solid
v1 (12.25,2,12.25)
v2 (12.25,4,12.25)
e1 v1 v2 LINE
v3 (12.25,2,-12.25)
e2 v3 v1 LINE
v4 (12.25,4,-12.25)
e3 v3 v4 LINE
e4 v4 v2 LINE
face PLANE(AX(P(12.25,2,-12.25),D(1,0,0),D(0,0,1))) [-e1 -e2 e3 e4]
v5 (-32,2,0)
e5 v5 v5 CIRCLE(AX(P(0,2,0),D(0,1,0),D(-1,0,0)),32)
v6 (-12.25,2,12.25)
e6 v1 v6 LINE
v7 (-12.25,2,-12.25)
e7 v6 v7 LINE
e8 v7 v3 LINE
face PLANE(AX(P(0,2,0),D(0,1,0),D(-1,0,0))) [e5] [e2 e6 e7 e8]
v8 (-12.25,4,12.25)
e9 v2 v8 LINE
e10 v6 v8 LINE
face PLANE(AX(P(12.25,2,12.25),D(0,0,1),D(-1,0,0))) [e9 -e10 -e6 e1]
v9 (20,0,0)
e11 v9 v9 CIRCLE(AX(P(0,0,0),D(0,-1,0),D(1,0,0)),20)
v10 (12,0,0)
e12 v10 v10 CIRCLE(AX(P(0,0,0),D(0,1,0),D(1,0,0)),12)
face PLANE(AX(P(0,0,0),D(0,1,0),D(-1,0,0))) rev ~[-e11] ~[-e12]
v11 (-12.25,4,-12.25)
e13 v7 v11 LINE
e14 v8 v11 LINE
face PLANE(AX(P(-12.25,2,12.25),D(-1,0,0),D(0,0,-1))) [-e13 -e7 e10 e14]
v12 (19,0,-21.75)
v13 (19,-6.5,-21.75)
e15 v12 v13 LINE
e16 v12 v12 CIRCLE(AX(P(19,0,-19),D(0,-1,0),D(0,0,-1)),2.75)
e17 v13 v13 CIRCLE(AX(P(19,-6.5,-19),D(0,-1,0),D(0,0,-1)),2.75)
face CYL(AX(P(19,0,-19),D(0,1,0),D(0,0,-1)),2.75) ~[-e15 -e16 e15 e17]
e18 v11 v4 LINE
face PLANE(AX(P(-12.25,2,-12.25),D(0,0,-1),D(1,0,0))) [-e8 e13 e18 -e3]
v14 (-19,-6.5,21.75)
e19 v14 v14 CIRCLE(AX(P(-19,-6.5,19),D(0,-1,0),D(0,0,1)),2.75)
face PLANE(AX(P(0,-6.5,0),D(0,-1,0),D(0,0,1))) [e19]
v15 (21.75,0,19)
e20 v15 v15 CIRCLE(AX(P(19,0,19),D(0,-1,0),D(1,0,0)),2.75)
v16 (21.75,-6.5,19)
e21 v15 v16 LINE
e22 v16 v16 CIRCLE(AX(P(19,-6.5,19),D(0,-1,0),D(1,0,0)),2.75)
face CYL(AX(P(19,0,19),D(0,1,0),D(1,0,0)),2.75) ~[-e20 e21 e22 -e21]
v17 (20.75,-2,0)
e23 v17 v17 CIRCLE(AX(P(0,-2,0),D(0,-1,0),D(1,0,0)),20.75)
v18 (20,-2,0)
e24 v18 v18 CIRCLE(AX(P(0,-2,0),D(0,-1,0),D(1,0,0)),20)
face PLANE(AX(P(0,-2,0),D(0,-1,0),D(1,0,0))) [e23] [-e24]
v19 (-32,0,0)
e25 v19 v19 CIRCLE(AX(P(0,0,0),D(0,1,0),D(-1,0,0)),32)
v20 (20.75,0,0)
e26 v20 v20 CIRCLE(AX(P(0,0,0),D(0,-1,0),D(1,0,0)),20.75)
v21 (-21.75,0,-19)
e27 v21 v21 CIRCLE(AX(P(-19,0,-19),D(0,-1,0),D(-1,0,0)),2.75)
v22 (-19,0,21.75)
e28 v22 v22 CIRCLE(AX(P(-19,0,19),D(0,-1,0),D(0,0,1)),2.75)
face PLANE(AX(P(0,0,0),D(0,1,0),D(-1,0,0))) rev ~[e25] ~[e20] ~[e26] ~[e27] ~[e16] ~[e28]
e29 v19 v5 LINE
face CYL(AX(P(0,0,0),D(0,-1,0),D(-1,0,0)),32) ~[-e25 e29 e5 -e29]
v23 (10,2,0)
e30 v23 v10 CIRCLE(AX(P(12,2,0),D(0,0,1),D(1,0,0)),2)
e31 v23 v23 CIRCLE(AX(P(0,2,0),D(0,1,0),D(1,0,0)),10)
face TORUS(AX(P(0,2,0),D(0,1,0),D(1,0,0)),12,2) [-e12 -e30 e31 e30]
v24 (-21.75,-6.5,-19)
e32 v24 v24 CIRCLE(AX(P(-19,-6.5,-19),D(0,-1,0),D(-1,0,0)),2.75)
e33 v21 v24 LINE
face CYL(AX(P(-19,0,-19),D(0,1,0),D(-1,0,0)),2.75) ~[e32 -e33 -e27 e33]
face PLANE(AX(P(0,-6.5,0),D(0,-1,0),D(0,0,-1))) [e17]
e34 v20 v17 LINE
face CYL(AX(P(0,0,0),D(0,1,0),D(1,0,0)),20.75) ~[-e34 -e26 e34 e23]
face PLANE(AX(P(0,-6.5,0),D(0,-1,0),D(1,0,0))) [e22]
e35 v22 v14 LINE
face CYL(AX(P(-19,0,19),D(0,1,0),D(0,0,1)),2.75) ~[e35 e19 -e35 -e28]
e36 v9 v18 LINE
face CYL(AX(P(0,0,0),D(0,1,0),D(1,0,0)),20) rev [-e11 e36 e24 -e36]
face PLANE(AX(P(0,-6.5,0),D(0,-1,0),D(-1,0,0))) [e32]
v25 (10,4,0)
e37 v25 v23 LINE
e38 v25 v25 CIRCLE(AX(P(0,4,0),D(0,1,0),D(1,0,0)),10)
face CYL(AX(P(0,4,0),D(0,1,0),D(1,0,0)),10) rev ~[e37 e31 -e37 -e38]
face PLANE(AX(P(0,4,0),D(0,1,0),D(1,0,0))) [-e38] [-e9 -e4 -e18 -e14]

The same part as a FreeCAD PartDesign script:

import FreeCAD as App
import Part
import Sketcher

V = App.Vector


def edges_at(feature, points):
    """Names of the edges that pass closest to the given points."""
    edges = feature.Shape.Edges
    near = lambda p: min(range(len(edges)), key=lambda i: edges[i].distToShape(Part.Vertex(*p))[0])
    return sorted({f"Edge{near(p) + 1}" for p in points})


def add_polygon(sketch, points):
    """Adds a closed chain of lines whose ends are joined by coincident constraints."""
    first, n = sketch.GeometryCount, len(points)
    for a, b in zip(points, points[1:] + points[:1]):
        sketch.addGeometry(Part.LineSegment(App.Vector(*a, 0), App.Vector(*b, 0)), False)
    for i in range(n):
        sketch.addConstraint(Sketcher.Constraint("Coincident", first + i, 2, first + (i + 1) % n, 1))

doc = App.newDocument("Part")
body = doc.addObject("PartDesign::Body", "Body")

# Sketch on XZ plane
sketch1 = doc.addObject("Sketcher::SketchObject", "Sketch")
body.addObject(sketch1)
sketch1.AttachmentSupport = (doc.XZ_Plane, [""])
sketch1.MapMode = "FlatFace"
sketch1.addGeometry(Part.Circle(V(0, 0, 0), V(0, 0, 1), 32), False)
sketch1.addConstraint(Sketcher.Constraint("Coincident", 0, 3, -1, 1))
sketch1.addConstraint(Sketcher.Constraint("Diameter", 0, 64.0))
pad1 = doc.addObject("PartDesign::Pad", "Pad")
body.addObject(pad1)
pad1.Profile = sketch1
pad1.Length = 2
pad1.Reversed = True

# Sketch on XZ plane
sketch2 = doc.addObject("Sketcher::SketchObject", "Sketch001")
body.addObject(sketch2)
sketch2.AttachmentSupport = (doc.XZ_Plane, [""])
sketch2.MapMode = "FlatFace"
sketch2.addGeometry(Part.Circle(V(0, 0, 0), V(0, 0, 1), 20.75), False)
sketch2.addGeometry(Part.Circle(V(0, 0, 0), V(0, 0, 1), 20), False)
sketch2.addConstraint(Sketcher.Constraint("Coincident", 0, 3, -1, 1))
sketch2.addConstraint(Sketcher.Constraint("Coincident", 1, 3, -1, 1))
sketch2.addConstraint(Sketcher.Constraint("Diameter", 1, 40.0))
sketch2.addConstraint(Sketcher.Constraint("Diameter", 0, 41.5))
pad2 = doc.addObject("PartDesign::Pad", "Pad001")
body.addObject(pad2)
pad2.Profile = sketch2
pad2.Length = 2

# Sketch on XZ plane
sketch3 = doc.addObject("Sketcher::SketchObject", "Sketch002")
body.addObject(sketch3)
sketch3.AttachmentSupport = (doc.XZ_Plane, [""])
sketch3.MapMode = "FlatFace"
sketch3.addGeometry(Part.Circle(V(19, 19, 0), V(0, 0, 1), 2.75), False)
sketch3.addConstraint(Sketcher.Constraint("Diameter", 0, 5.5))
sketch3.addConstraint(Sketcher.Constraint("DistanceX", -1, 1, 0, 3, 19.0))
sketch3.addConstraint(Sketcher.Constraint("DistanceY", -1, 1, 0, 3, 19.0))
pad3 = doc.addObject("PartDesign::Pad", "Pad002")
body.addObject(pad3)
pad3.Profile = sketch3
pad3.Length = 6.5
doc.recompute()

polarpattern = doc.addObject("PartDesign::PolarPattern", "PolarPattern")
body.addObject(polarpattern)
polarpattern.Originals = [pad3]
polarpattern.Axis = (doc.Y_Axis, [""])
polarpattern.Angle = 360
polarpattern.Occurrences = 4
body.Tip = polarpattern

# Sketch on XZ plane
sketch4 = doc.addObject("Sketcher::SketchObject", "Sketch003")
body.addObject(sketch4)
sketch4.AttachmentSupport = (doc.XZ_Plane, [""])
sketch4.MapMode = "FlatFace"
sketch4.AttachmentOffset = App.Placement(V(0, 0, -2), App.Rotation())
add_polygon(sketch4, [(12.25, -12.25), (-12.25, -12.25), (-12.25, 12.25), (12.25, 12.25)])  # lines 0-3
sketch4.addConstraint(Sketcher.Constraint("Horizontal", 0))
sketch4.addConstraint(Sketcher.Constraint("Vertical", 1))
sketch4.addConstraint(Sketcher.Constraint("Horizontal", 2))
sketch4.addConstraint(Sketcher.Constraint("Vertical", 3))
sketch4.addConstraint(Sketcher.Constraint("Symmetric", 0, 2, 2, 2, -1, 1))
sketch4.addConstraint(Sketcher.Constraint("Equal", 2, 1))
sketch4.addConstraint(Sketcher.Constraint("DistanceX", 0, 2, 0, 1, 24.5))
pad4 = doc.addObject("PartDesign::Pad", "Pad003")
body.addObject(pad4)
pad4.Profile = sketch4
pad4.Length = 2
pad4.Reversed = True

# Sketch on XZ plane
sketch5 = doc.addObject("Sketcher::SketchObject", "Sketch004")
body.addObject(sketch5)
sketch5.AttachmentSupport = (doc.XZ_Plane, [""])
sketch5.MapMode = "FlatFace"
sketch5.AttachmentOffset = App.Placement(V(0, 0, -4), App.Rotation())
sketch5.addGeometry(Part.Circle(V(0, 0, 0), V(0, 0, 1), 10), False)
sketch5.addConstraint(Sketcher.Constraint("Coincident", 0, 3, -1, 1))
sketch5.addConstraint(Sketcher.Constraint("Diameter", 0, 20.0))
pocket1 = doc.addObject("PartDesign::Pocket", "Pocket")
body.addObject(pocket1)
pocket1.Profile = sketch5
pocket1.Type = "ThroughAll"
pocket1.Reversed = True
doc.recompute()

fillet = doc.addObject("PartDesign::Fillet", "Fillet")
body.addObject(fillet)
fillet.Base = (pocket1, edges_at(pocket1, [(-10, 0, 0)]))
fillet.Radius = 2

doc.recompute()
